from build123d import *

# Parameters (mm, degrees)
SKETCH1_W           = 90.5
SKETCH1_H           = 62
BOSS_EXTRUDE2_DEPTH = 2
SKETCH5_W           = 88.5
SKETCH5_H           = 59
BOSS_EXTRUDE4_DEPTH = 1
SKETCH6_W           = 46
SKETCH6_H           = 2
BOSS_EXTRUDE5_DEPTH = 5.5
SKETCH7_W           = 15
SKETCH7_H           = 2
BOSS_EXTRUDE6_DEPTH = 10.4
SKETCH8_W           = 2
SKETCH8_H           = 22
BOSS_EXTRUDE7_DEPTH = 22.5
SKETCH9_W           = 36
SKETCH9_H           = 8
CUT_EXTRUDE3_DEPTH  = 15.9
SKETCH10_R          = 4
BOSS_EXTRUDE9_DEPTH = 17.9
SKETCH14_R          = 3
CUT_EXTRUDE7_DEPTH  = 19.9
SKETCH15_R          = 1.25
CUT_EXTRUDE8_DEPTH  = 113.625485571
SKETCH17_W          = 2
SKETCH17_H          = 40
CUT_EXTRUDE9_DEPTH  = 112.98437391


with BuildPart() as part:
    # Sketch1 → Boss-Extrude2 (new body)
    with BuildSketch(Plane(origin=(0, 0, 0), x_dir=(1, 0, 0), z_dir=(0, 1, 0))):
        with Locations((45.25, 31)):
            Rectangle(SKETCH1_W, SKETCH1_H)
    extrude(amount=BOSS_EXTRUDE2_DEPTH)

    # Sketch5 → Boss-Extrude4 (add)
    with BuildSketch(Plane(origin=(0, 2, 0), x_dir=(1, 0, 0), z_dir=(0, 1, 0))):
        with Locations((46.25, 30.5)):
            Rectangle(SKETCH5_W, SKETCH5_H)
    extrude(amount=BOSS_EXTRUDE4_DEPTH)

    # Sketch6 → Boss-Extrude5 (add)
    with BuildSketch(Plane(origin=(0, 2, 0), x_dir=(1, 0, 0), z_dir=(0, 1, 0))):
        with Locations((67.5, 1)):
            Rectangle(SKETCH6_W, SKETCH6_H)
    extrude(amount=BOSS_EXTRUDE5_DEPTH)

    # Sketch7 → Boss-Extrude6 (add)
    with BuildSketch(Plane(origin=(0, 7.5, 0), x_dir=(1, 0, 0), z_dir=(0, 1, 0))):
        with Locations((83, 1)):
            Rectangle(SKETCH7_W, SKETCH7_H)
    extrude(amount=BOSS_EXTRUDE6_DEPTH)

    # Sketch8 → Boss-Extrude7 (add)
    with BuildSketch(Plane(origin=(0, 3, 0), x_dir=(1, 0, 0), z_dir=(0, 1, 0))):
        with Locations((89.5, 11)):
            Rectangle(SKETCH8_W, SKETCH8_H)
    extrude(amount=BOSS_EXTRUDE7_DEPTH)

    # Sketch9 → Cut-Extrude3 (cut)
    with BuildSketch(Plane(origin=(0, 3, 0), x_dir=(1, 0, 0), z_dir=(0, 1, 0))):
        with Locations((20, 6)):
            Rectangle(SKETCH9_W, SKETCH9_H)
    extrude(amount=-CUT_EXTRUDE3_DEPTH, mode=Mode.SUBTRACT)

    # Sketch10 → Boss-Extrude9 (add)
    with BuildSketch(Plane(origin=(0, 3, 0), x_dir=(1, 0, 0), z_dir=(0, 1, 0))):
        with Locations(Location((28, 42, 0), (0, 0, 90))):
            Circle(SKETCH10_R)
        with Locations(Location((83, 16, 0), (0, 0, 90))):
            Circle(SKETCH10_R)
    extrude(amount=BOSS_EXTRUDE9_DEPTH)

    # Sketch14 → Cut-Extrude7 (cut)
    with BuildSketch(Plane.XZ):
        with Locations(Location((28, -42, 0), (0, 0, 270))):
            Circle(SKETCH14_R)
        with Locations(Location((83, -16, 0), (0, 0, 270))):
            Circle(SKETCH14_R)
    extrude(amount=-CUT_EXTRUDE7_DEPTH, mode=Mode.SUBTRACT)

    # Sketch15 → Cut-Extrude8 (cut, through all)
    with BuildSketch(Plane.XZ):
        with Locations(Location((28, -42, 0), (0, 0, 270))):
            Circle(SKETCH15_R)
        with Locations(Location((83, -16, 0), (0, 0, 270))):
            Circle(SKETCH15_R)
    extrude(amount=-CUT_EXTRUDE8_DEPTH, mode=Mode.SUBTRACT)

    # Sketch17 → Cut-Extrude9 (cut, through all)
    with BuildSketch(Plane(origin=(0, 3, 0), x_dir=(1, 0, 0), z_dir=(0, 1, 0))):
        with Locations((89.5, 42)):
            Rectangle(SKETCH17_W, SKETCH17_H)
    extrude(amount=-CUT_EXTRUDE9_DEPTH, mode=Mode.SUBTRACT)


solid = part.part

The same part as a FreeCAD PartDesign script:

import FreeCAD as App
import Part
import Sketcher
from FreeCAD import Vector


def add_polygon(sketch, points):
    """Adds a closed chain of lines whose ends are joined by coincident constraints."""
    first, n = sketch.GeometryCount, len(points)
    for a, b in zip(points, points[1:] + points[:1]):
        sketch.addGeometry(Part.LineSegment(App.Vector(*a, 0), App.Vector(*b, 0)), False)
    for i in range(n):
        sketch.addConstraint(Sketcher.Constraint("Coincident", first + i, 2, first + (i + 1) % n, 1))

doc = App.newDocument("Part")
body = doc.addObject("PartDesign::Body", "Body")

# Sketch on XZ plane
sketch1 = body.newObject("Sketcher::SketchObject", "Sketch")
sketch1.AttachmentSupport = (doc.getObject("XZ_Plane"), [""])
sketch1.MapMode = "FlatFace"
add_polygon(sketch1, [(0, -62), (0, 0), (90, 0), (90, -62)])  # lines 0-3
sketch1.addConstraint([
    Sketcher.Constraint("Vertical", 0),
    Sketcher.Constraint("Horizontal", 1),
    Sketcher.Constraint("Vertical", 2),
    Sketcher.Constraint("Horizontal", 3),
    Sketcher.Constraint("Coincident", 0, 2, -1, 1),
    Sketcher.Constraint("DistanceY", 0, 1, 0, 2, 62.0),
    Sketcher.Constraint("DistanceX", 1, 1, 1, 2, 90.5),
])
pad1 = body.newObject("PartDesign::Pad", "Pad")
pad1.Profile = sketch1
pad1.Length = 2
pad1.Reversed = True

# Sketch on XZ plane
sketch2 = body.newObject("Sketcher::SketchObject", "Sketch001")
sketch2.AttachmentSupport = (doc.getObject("XZ_Plane"), [""])
sketch2.MapMode = "FlatFace"
sketch2.AttachmentOffset = App.Placement(Vector(0, 0, -2), App.Rotation())
add_polygon(sketch2, [(2, -60), (2, -1), (90, -1), (90, -60)])  # lines 0-3
sketch2.addConstraint([
    Sketcher.Constraint("Vertical", 0),
    Sketcher.Constraint("Horizontal", 1),
    Sketcher.Constraint("Vertical", 2),
    Sketcher.Constraint("Horizontal", 3),
    Sketcher.Constraint("DistanceY", 0, 1, 0, 2, 59.0),
    Sketcher.Constraint("DistanceX", 1, 1, 1, 2, 88.5),
    Sketcher.Constraint("DistanceX", -1, 1, 0, 2, 2.0),
    Sketcher.Constraint("DistanceY", 0, 2, -1, 1, 1.0),
])
pad2 = body.newObject("PartDesign::Pad", "Pad001")
pad2.Profile = sketch2
pad2.Length = 1
pad2.Reversed = True

# Sketch on XZ plane
sketch3 = body.newObject("Sketcher::SketchObject", "Sketch002")
sketch3.AttachmentSupport = (doc.getObject("XZ_Plane"), [""])
sketch3.MapMode = "FlatFace"
sketch3.AttachmentOffset = App.Placement(Vector(0, 0, -2), App.Rotation())
add_polygon(sketch3, [(44.5, -2), (44.5, 0), (90.5, 0), (90.5, -2)])  # lines 0-3
sketch3.addConstraint([
    Sketcher.Constraint("Vertical", 0),
    Sketcher.Constraint("Horizontal", 1),
    Sketcher.Constraint("Vertical", 2),
    Sketcher.Constraint("Horizontal", 3),
    Sketcher.Constraint("PointOnObject", 0, 2, -1),
    Sketcher.Constraint("DistanceX", 1, 1, 1, 2, 46.0),
    Sketcher.Constraint("DistanceY", 0, 1, 0, 2, 2.0),
    Sketcher.Constraint("DistanceX", -1, 1, 0, 2, 44.5),
])
pad3 = body.newObject("PartDesign::Pad", "Pad002")
pad3.Profile = sketch3
pad3.Length = 5.5
pad3.Reversed = True

# Sketch on XZ plane
sketch4 = body.newObject("Sketcher::SketchObject", "Sketch003")
sketch4.AttachmentSupport = (doc.getObject("XZ_Plane"), [""])
sketch4.MapMode = "FlatFace"
sketch4.AttachmentOffset = App.Placement(Vector(0, 0, -7.5), App.Rotation())
add_polygon(sketch4, [(75.5, -2), (75.5, 0), (90.5, 0), (90.5, -2)])  # lines 0-3
sketch4.addConstraint([
    Sketcher.Constraint("Vertical", 0),
    Sketcher.Constraint("Horizontal", 1),
    Sketcher.Constraint("Vertical", 2),
    Sketcher.Constraint("Horizontal", 3),
    Sketcher.Constraint("PointOnObject", 0, 2, -1),
    Sketcher.Constraint("DistanceX", 1, 1, 1, 2, 15.0),
    Sketcher.Constraint("DistanceY", 0, 1, 0, 2, 2.0),
    Sketcher.Constraint("DistanceX", -1, 1, 0, 2, 75.5),
])
pad4 = body.newObject("PartDesign::Pad", "Pad003")
pad4.Profile = sketch4
pad4.Length = 10.4
pad4.Reversed = True

# Sketch on XZ plane
sketch5 = body.newObject("Sketcher::SketchObject", "Sketch004")
sketch5.AttachmentSupport = (doc.getObject("XZ_Plane"), [""])
sketch5.MapMode = "FlatFace"
sketch5.AttachmentOffset = App.Placement(Vector(0, 0, -3), App.Rotation())
add_polygon(sketch5, [(88.5, -22), (88.5, 0), (90.5, 0), (90.5, -22)])  # lines 0-3
sketch5.addConstraint([
    Sketcher.Constraint("Vertical", 0),
    Sketcher.Constraint("Horizontal", 1),
    Sketcher.Constraint("Vertical", 2),
    Sketcher.Constraint("Horizontal", 3),
    Sketcher.Constraint("PointOnObject", 0, 2, -1),
    Sketcher.Constraint("DistanceX", 1, 1, 1, 2, 2.0),
    Sketcher.Constraint("DistanceY", 0, 1, 0, 2, 22.0),
    Sketcher.Constraint("DistanceX", -1, 1, 0, 2, 88.5),
])
pad5 = body.newObject("PartDesign::Pad", "Pad004")
pad5.Profile = sketch5
pad5.Length = 22.5
pad5.Reversed = True

# Sketch on XZ plane
sketch6 = body.newObject("Sketcher::SketchObject", "Sketch005")
sketch6.AttachmentSupport = (doc.getObject("XZ_Plane"), [""])
sketch6.MapMode = "FlatFace"
sketch6.AttachmentOffset = App.Placement(Vector(0, 0, -3), App.Rotation())
add_polygon(sketch6, [(2, -10), (2, -2), (38, -2), (38, -10)])  # lines 0-3
sketch6.addConstraint([
    Sketcher.Constraint("Vertical", 0),
    Sketcher.Constraint("Horizontal", 1),
    Sketcher.Constraint("Vertical", 2),
    Sketcher.Constraint("Horizontal", 3),
    Sketcher.Constraint("DistanceX", 1, 1, 1, 2, 36.0),
    Sketcher.Constraint("DistanceY", 0, 1, 0, 2, 8.0),
    Sketcher.Constraint("DistanceX", -1, 1, 0, 2, 2.0),
    Sketcher.Constraint("DistanceY", 0, 2, -1, 1, 2.0),
])
pocket1 = body.newObject("PartDesign::Pocket", "Pocket")
pocket1.Profile = sketch6
pocket1.Length = 15.9
pocket1.Reversed = True

# Sketch on XZ plane
sketch7 = body.newObject("Sketcher::SketchObject", "Sketch006")
sketch7.AttachmentSupport = (doc.getObject("XZ_Plane"), [""])
sketch7.MapMode = "FlatFace"
sketch7.AttachmentOffset = App.Placement(Vector(0, 0, -3), App.Rotation())
sketch7.addGeometry([
    Part.Circle(Vector(28, -42, 0), Vector(0, 0, 1), 4),
    Part.Circle(Vector(83, -16, 0), Vector(0, 0, 1), 4),
], False)
sketch7.addConstraint([
    Sketcher.Constraint("Equal", 0, 1),
    Sketcher.Constraint("Diameter", 0, 8.0),
    Sketcher.Constraint("DistanceX", -1, 1, 0, 3, 28.0),
    Sketcher.Constraint("DistanceY", 0, 3, -1, 1, 42.0),
    Sketcher.Constraint("DistanceX", -1, 1, 1, 3, 83.0),
    Sketcher.Constraint("DistanceY", 1, 3, -1, 1, 16.0),
])
pad6 = body.newObject("PartDesign::Pad", "Pad005")
pad6.Profile = sketch7
pad6.Length = 17.9
pad6.Reversed = True

# Sketch on XZ plane
sketch8 = body.newObject("Sketcher::SketchObject", "Sketch007")
sketch8.AttachmentSupport = (doc.getObject("XZ_Plane"), [""])
sketch8.MapMode = "FlatFace"
sketch8.addGeometry([
    Part.Circle(Vector(28, -42, 0), Vector(0, 0, 1), 3),
    Part.Circle(Vector(83, -16, 0), Vector(0, 0, 1), 3),
], False)
sketch8.addConstraint([
    Sketcher.Constraint("Equal", 0, 1),
    Sketcher.Constraint("Diameter", 0, 6.0),
    Sketcher.Constraint("DistanceX", -1, 1, 0, 3, 28.0),
    Sketcher.Constraint("DistanceY", 0, 3, -1, 1, 42.0),
    Sketcher.Constraint("DistanceX", -1, 1, 1, 3, 83.0),
    Sketcher.Constraint("DistanceY", 1, 3, -1, 1, 16.0),
])
pocket2 = body.newObject("PartDesign::Pocket", "Pocket001")
pocket2.Profile = sketch8
pocket2.Length = 19.9

# Sketch on XZ plane
sketch9 = body.newObject("Sketcher::SketchObject", "Sketch008")
sketch9.AttachmentSupport = (doc.getObject("XZ_Plane"), [""])
sketch9.MapMode = "FlatFace"
sketch9.addGeometry([
    Part.Circle(Vector(28, -42, 0), Vector(0, 0, 1), 1.2),
    Part.Circle(Vector(83, -16, 0), Vector(0, 0, 1), 1.2),
], False)
sketch9.addConstraint([
    Sketcher.Constraint("Equal", 0, 1),
    Sketcher.Constraint("Diameter", 0, 2.5),
    Sketcher.Constraint("DistanceX", -1, 1, 0, 3, 28.0),
    Sketcher.Constraint("DistanceY", 0, 3, -1, 1, 42.0),
    Sketcher.Constraint("DistanceX", -1, 1, 1, 3, 83.0),
    Sketcher.Constraint("DistanceY", 1, 3, -1, 1, 16.0),
])
pocket3 = body.newObject("PartDesign::Pocket", "Pocket002")
pocket3.Profile = sketch9
pocket3.Type = "ThroughAll"

# Sketch on XZ plane
sketch10 = body.newObject("Sketcher::SketchObject", "Sketch009")
sketch10.AttachmentSupport = (doc.getObject("XZ_Plane"), [""])
sketch10.MapMode = "FlatFace"
sketch10.AttachmentOffset = App.Placement(Vector(0, 0, -3), App.Rotation())
add_polygon(sketch10, [(88.5, -62), (88.5, -22), (90.5, -22), (90.5, -62)])  # lines 0-3
sketch10.addConstraint([
    Sketcher.Constraint("Vertical", 0),
    Sketcher.Constraint("Horizontal", 1),
    Sketcher.Constraint("Vertical", 2),
    Sketcher.Constraint("Horizontal", 3),
    Sketcher.Constraint("DistanceX", 1, 1, 1, 2, 2.0),
    Sketcher.Constraint("DistanceY", 0, 1, 0, 2, 40.0),
    Sketcher.Constraint("DistanceY", 0, 2, -1, 1, 22.0),
    Sketcher.Constraint("DistanceX", -1, 1, 0, 2, 88.5),
])
pocket4 = body.newObject("PartDesign::Pocket", "Pocket003")
pocket4.Profile = sketch10
pocket4.Type = "ThroughAll"
pocket4.Reversed = True

doc.recompute()
